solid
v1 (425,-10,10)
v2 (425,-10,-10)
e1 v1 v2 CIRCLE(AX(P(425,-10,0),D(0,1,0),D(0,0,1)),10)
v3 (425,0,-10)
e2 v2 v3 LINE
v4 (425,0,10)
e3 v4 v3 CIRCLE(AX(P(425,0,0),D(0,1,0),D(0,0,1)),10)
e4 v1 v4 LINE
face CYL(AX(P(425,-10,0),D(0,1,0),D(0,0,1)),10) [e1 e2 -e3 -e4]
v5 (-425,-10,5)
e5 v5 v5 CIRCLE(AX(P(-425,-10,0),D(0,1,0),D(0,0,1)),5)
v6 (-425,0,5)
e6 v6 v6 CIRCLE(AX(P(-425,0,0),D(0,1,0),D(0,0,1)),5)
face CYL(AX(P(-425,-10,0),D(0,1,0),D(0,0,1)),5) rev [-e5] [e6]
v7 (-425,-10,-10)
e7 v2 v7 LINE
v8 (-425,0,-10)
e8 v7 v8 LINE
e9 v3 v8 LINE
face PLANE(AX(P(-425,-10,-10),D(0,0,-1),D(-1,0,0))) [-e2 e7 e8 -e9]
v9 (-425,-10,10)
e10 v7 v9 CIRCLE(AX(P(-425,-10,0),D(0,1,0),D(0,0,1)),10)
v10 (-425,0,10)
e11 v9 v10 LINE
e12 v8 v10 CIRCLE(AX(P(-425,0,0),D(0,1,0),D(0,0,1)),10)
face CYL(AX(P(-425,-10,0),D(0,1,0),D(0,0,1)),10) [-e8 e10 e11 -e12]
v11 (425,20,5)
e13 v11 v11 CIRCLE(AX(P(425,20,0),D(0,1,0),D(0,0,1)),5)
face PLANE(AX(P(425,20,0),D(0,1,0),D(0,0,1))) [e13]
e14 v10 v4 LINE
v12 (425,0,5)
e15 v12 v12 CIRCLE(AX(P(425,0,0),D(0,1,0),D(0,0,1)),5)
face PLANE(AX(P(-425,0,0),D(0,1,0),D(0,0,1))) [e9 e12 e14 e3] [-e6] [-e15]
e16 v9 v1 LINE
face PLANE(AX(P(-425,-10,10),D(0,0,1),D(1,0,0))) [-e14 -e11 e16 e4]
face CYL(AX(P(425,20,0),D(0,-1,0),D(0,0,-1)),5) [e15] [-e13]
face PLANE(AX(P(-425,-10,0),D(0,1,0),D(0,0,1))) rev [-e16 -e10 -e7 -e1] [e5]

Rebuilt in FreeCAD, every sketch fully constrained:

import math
import FreeCAD as App
import Part
import Sketcher
from FreeCAD import Vector
Q = App.Units.Quantity

doc = App.newDocument("Part")
body = doc.addObject("PartDesign::Body", "Body")

# Sketch on XZ plane
sketch1 = body.newObject("Sketcher::SketchObject", "Sketch")
sketch1.AttachmentSupport = (doc.getObject("XZ_Plane"), [""])
sketch1.MapMode = "FlatFace"
sketch1.addGeometry(Part.LineSegment(Vector(425, -10, 0), Vector(-425, -10, 0)), False)
sketch1.addGeometry(Part.ArcOfCircle(Part.Circle(Vector(-425, 0, 0), Vector(0, 0, 1), 10), math.radians(90), math.radians(270)), False)
sketch1.addGeometry(Part.LineSegment(Vector(-425, 10, 0), Vector(425, 10, 0)), False)
sketch1.addGeometry(Part.ArcOfCircle(Part.Circle(Vector(425, 0, 0), Vector(0, 0, 1), 10), math.radians(-90), math.radians(90)), False)
sketch1.addGeometry(Part.Circle(Vector(-425, 0, 0), Vector(0, 0, 1), 5), False)
sketch1.addConstraint(Sketcher.Constraint("Tangent", 0, 2, 1, 2))
sketch1.addConstraint(Sketcher.Constraint("Tangent", 1, 1, 2, 1))
sketch1.addConstraint(Sketcher.Constraint("Tangent", 2, 2, 3, 2))
sketch1.addConstraint(Sketcher.Constraint("Tangent", 3, 1, 0, 1))
sketch1.addConstraint(Sketcher.Constraint("Horizontal", 0))
sketch1.addConstraint(Sketcher.Constraint("Horizontal", 2))
sketch1.addConstraint(Sketcher.Constraint("Coincident", 4, 3, 1, 3))
sketch1.addConstraint(Sketcher.Constraint("Symmetric", 1, 3, 3, 3, -1, 1))
sketch1.addConstraint(Sketcher.Constraint("Diameter", 4, Q("10 mm")))
sketch1.addConstraint(Sketcher.Constraint("Radius", 1, Q("10 mm")))
sketch1.addConstraint(Sketcher.Constraint("DistanceX", 0, 2, 0, 1, Q("850 mm")))
pad1 = body.newObject("PartDesign::Pad", "Pad")
pad1.Profile = sketch1
pad1.Length = 10

# Sketch on XZ plane
sketch2 = body.newObject("Sketcher::SketchObject", "Sketch001")
sketch2.AttachmentSupport = (doc.getObject("XZ_Plane"), [""])
sketch2.MapMode = "FlatFace"
sketch2.addGeometry(Part.Circle(Vector(425, 0, 0), Vector(0, 0, 1), 5), False)
sketch2.addConstraint(Sketcher.Constraint("PointOnObject", 0, 3, -1))
sketch2.addConstraint(Sketcher.Constraint("Diameter", 0, Q("10 mm")))
sketch2.addConstraint(Sketcher.Constraint("DistanceX", -1, 1, 0, 3, Q("425 mm")))
pad2 = body.newObject("PartDesign::Pad", "Pad001")
pad2.Profile = sketch2
pad2.Length = 20
pad2.Reversed = True

doc.recompute()
